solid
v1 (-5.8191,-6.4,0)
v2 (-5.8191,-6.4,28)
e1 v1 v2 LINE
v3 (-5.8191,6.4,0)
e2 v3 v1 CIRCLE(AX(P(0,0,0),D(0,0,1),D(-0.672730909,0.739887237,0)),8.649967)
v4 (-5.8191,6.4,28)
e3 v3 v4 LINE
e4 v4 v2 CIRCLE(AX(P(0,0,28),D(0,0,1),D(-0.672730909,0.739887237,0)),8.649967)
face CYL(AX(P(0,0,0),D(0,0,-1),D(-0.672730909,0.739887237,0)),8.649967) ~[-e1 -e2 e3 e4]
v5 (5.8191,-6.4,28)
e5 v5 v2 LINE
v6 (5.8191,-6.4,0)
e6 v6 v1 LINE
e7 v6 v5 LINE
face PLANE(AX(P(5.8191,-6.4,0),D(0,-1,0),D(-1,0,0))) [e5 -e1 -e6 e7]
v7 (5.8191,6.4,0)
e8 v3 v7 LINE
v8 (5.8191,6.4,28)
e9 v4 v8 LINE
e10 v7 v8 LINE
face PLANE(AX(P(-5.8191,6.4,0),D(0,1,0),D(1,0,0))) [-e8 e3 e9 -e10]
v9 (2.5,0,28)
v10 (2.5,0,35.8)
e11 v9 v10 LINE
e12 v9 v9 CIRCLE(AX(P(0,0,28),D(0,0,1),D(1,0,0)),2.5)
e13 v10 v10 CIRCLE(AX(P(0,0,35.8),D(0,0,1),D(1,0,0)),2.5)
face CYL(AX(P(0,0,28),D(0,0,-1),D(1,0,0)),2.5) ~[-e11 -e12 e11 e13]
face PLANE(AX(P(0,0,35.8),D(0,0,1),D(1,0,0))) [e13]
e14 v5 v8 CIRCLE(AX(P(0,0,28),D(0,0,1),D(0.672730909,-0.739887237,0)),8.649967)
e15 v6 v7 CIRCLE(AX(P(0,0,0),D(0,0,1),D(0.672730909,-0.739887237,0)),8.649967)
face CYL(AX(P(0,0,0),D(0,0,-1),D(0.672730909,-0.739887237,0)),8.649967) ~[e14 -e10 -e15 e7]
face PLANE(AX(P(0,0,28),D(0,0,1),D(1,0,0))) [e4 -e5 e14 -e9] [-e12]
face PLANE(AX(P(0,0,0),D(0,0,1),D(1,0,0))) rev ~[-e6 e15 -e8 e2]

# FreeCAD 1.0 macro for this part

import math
import FreeCAD as App
import Part
import Sketcher
from FreeCAD import Vector
Q = App.Units.Quantity

doc = App.newDocument("Part")
body = doc.addObject("PartDesign::Body", "Body")

# Sketch on XY plane
sketch1 = body.newObject("Sketcher::SketchObject", "Sketch")
sketch1.AttachmentSupport = (doc.getObject("XY_Plane"), [""])
sketch1.MapMode = "FlatFace"
sketch1.addGeometry([
    Part.LineSegment(Vector(-6, -6, 0), Vector(6, -6, 0)),
    Part.ArcOfCircle(Part.Circle(Vector(0, 0, 0), Vector(0, 0, 1), 9), math.radians(-48), math.radians(48)),
    Part.LineSegment(Vector(6, 6, 0), Vector(-6, 6, 0)),
    Part.ArcOfCircle(Part.Circle(Vector(0, 0, 0), Vector(0, 0, 1), 9), math.radians(132), math.radians(228)),
], False)
sketch1.addConstraint([
    Sketcher.Constraint("Coincident", 0, 2, 1, 1),
    Sketcher.Constraint("Coincident", 1, 2, 2, 1),
    Sketcher.Constraint("Coincident", 2, 2, 3, 1),
    Sketcher.Constraint("Coincident", 3, 2, 0, 1),
    Sketcher.Constraint("Horizontal", 0),
    Sketcher.Constraint("Horizontal", 2),
    Sketcher.Constraint("Coincident", 1, 3, -1, 1),
    Sketcher.Constraint("Coincident", 3, 3, -1, 1),
    Sketcher.Constraint("Equal", 1, 3),
    Sketcher.Constraint("Vertical", 0, 2, 1, 2),
    Sketcher.Constraint("DistanceY", 0, 2, 1, 2, Q("12.8 mm")),
    Sketcher.Constraint("Radius", 1, Q("8.65 mm")),
])
pad1 = body.newObject("PartDesign::Pad", "Pad")
pad1.Profile = sketch1
pad1.Length = 28

# Sketch on XY plane
sketch2 = body.newObject("Sketcher::SketchObject", "Sketch001")
sketch2.AttachmentSupport = (doc.getObject("XY_Plane"), [""])
sketch2.MapMode = "FlatFace"
sketch2.AttachmentOffset = App.Placement(Vector(0, 0, 28), App.Rotation())
sketch2.addGeometry(Part.Circle(Vector(0, 0, 0), Vector(0, 0, 1), 2.5), False)
sketch2.addConstraint([
    Sketcher.Constraint("Coincident", 0, 3, -1, 1),
    Sketcher.Constraint("Diameter", 0, Q("5 mm")),
])
pad2 = body.newObject("PartDesign::Pad", "Pad001")
pad2.Profile = sketch2
pad2.Length = 7.8

doc.recompute()
